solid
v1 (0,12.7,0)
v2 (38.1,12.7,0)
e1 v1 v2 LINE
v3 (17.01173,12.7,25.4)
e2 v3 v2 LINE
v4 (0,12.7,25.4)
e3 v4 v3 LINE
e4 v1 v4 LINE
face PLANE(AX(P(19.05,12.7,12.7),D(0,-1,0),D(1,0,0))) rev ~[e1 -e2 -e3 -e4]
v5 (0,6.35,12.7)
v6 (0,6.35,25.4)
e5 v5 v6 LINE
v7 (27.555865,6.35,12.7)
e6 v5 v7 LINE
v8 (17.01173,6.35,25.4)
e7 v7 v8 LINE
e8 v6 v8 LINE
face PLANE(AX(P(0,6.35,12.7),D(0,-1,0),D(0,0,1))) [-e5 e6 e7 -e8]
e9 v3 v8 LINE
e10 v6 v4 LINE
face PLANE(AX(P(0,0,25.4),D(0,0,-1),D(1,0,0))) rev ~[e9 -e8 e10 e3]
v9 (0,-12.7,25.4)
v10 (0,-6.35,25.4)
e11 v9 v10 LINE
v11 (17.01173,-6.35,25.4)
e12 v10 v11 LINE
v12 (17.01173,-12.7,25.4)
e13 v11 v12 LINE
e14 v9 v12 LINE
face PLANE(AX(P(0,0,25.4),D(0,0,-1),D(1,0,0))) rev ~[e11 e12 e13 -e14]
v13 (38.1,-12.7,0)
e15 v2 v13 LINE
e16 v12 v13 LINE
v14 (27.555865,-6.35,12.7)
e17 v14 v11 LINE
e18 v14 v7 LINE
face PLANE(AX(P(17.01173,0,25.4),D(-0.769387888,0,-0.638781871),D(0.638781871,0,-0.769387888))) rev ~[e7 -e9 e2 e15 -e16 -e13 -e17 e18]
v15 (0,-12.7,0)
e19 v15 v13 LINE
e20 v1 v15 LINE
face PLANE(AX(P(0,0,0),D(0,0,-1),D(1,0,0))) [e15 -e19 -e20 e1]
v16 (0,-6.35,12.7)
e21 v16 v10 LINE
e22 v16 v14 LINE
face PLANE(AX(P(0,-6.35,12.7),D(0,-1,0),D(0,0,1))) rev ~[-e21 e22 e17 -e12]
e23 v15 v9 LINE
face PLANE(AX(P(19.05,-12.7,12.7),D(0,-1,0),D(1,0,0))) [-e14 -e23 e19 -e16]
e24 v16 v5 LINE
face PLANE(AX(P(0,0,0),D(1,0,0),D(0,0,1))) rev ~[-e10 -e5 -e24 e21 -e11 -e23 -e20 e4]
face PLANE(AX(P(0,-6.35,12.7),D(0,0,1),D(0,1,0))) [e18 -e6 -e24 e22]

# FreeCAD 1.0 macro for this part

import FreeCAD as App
import Part
import Sketcher
Q = App.Units.Quantity

doc = App.newDocument("Part")
body = doc.addObject("PartDesign::Body", "Body")

sketch1 = body.newObject("Sketcher::SketchObject", "Sketch")
sketch1.AttachmentSupport = (doc.getObject("XZ_Plane"), [""])
sketch1.MapMode = "FlatFace"
sketch1.addGeometry([
    Part.LineSegment(App.Vector(0, 25, 0), App.Vector(0, 0, 0)),
    Part.LineSegment(App.Vector(0, 0, 0), App.Vector(38, 0, 0)),
    Part.LineSegment(App.Vector(38, 0, 0), App.Vector(38, 25, 0)),
    Part.LineSegment(App.Vector(38, 25, 0), App.Vector(0, 25, 0)),
], False)
sketch1.addConstraint([
    Sketcher.Constraint("Coincident", 0, 2, 1, 1),
    Sketcher.Constraint("Coincident", 1, 2, 2, 1),
    Sketcher.Constraint("Coincident", 2, 2, 3, 1),
    Sketcher.Constraint("Coincident", 3, 2, 0, 1),
    Sketcher.Constraint("Vertical", 0),
    Sketcher.Constraint("Horizontal", 1),
    Sketcher.Constraint("Vertical", 2),
    Sketcher.Constraint("Horizontal", 3),
    Sketcher.Constraint("Coincident", 0, 2, -1, 1),
    Sketcher.Constraint("DistanceY", 0, 2, 0, 1, Q("1 in")),
    Sketcher.Constraint("DistanceX", 1, 1, 1, 2, Q("1.5 in")),
])
pad1 = body.newObject("PartDesign::Pad", "Pad")
pad1.Profile = sketch1
pad1.Length = Q("1 in")
pad1.Midplane = True

sketch2 = body.newObject("Sketcher::SketchObject", "Sketch001")
sketch2.AttachmentSupport = (doc.getObject("XZ_Plane"), [""])
sketch2.MapMode = "FlatFace"
sketch2.addGeometry([
    Part.LineSegment(App.Vector(38, 25, 0), App.Vector(17, 25, 0)),
    Part.LineSegment(App.Vector(17, 25, 0), App.Vector(38, 0, 0)),
    Part.LineSegment(App.Vector(38, 0, 0), App.Vector(38, 25, 0)),
], False)
sketch2.addConstraint([
    Sketcher.Constraint("Coincident", 0, 2, 1, 1),
    Sketcher.Constraint("Coincident", 1, 2, 2, 1),
    Sketcher.Constraint("Coincident", 2, 2, 0, 1),
    Sketcher.Constraint("Horizontal", 0),
    Sketcher.Constraint("Vertical", 2),
    Sketcher.Constraint("PointOnObject", 1, 2, -1),
    Sketcher.Constraint("DistanceY", 2, 1, 2, 2, Q("1 in")),
    Sketcher.Constraint("DistanceX", -1, 1, 1, 2, Q("1.5 in")),
    Sketcher.Constraint("DistanceX", 0, 2, 0, 1, Q("21.08827 mm")),
])
pocket1 = body.newObject("PartDesign::Pocket", "Pocket")
pocket1.Profile = sketch2
pocket1.Length = Q("1 in")
pocket1.Midplane = True

sketch3 = body.newObject("Sketcher::SketchObject", "Sketch002")
sketch3.AttachmentSupport = (doc.getObject("YZ_Plane"), [""])
sketch3.MapMode = "FlatFace"
sketch3.addGeometry([
    Part.LineSegment(App.Vector(-6, 25, 0), App.Vector(-6, 13, 0)),
    Part.LineSegment(App.Vector(-6, 13, 0), App.Vector(6, 13, 0)),
    Part.LineSegment(App.Vector(6, 13, 0), App.Vector(6, 25, 0)),
    Part.LineSegment(App.Vector(6, 25, 0), App.Vector(-6, 25, 0)),
], False)
sketch3.addConstraint([
    Sketcher.Constraint("Coincident", 0, 2, 1, 1),
    Sketcher.Constraint("Coincident", 1, 2, 2, 1),
    Sketcher.Constraint("Coincident", 2, 2, 3, 1),
    Sketcher.Constraint("Coincident", 3, 2, 0, 1),
    Sketcher.Constraint("Vertical", 0),
    Sketcher.Constraint("Horizontal", 1),
    Sketcher.Constraint("Vertical", 2),
    Sketcher.Constraint("Horizontal", 3),
    Sketcher.Constraint("Equal", 3, 0),
    Sketcher.Constraint("DistanceX", 1, 1, 1, 2, Q("0.5 in")),
    Sketcher.Constraint("DistanceY", -1, 1, 2, 2, Q("1 in")),
    Sketcher.Constraint("DistanceX", 0, 2, -1, 1, Q("0.25 in")),
])
pocket2 = body.newObject("PartDesign::Pocket", "Pocket001")
pocket2.Profile = sketch3
pocket2.Length = Q("2 in")
pocket2.Reversed = True

doc.recompute()
